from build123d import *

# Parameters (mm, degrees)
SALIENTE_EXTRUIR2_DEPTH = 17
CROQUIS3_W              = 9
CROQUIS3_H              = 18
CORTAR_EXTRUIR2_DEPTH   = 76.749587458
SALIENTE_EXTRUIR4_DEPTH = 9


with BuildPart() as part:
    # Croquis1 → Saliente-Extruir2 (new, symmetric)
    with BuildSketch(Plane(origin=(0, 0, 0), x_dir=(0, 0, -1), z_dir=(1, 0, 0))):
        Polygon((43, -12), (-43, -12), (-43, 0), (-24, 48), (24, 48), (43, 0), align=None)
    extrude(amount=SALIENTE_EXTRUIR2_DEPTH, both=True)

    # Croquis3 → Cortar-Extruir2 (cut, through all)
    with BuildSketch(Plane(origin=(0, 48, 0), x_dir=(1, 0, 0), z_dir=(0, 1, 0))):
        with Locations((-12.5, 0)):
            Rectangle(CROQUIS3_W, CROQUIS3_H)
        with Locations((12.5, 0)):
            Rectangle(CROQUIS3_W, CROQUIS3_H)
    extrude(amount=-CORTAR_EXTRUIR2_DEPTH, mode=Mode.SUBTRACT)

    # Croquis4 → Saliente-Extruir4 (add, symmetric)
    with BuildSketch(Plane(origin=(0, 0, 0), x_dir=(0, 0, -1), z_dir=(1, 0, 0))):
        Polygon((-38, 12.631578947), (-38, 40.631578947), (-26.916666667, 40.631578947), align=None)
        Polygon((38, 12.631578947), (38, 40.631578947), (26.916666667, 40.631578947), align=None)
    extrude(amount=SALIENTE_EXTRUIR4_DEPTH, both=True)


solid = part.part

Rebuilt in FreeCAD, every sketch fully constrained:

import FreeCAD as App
import Part
import Sketcher
Q = App.Units.Quantity

doc = App.newDocument("Part")
body = doc.addObject("PartDesign::Body", "Body")

sketch1 = doc.addObject("Sketcher::SketchObject", "Sketch")
body.addObject(sketch1)
sketch1.AttachmentSupport = (doc.YZ_Plane, [""])
sketch1.MapMode = "FlatFace"
sketch1.addGeometry(Part.LineSegment(App.Vector(-12, 43, 0), App.Vector(-12, -43, 0)), False)
sketch1.addGeometry(Part.LineSegment(App.Vector(-12, -43, 0), App.Vector(0, -43, 0)), False)
sketch1.addGeometry(Part.LineSegment(App.Vector(0, -43, 0), App.Vector(48, -24, 0)), False)
sketch1.addGeometry(Part.LineSegment(App.Vector(48, -24, 0), App.Vector(48, 24, 0)), False)
sketch1.addGeometry(Part.LineSegment(App.Vector(48, 24, 0), App.Vector(0, 43, 0)), False)
sketch1.addGeometry(Part.LineSegment(App.Vector(0, 43, 0), App.Vector(-12, 43, 0)), False)
sketch1.addConstraint(Sketcher.Constraint("Coincident", 0, 2, 1, 1))
sketch1.addConstraint(Sketcher.Constraint("Coincident", 1, 2, 2, 1))
sketch1.addConstraint(Sketcher.Constraint("Coincident", 2, 2, 3, 1))
sketch1.addConstraint(Sketcher.Constraint("Coincident", 3, 2, 4, 1))
sketch1.addConstraint(Sketcher.Constraint("Coincident", 4, 2, 5, 1))
sketch1.addConstraint(Sketcher.Constraint("Coincident", 5, 2, 0, 1))
sketch1.addConstraint(Sketcher.Constraint("Vertical", 0))
sketch1.addConstraint(Sketcher.Constraint("Horizontal", 1))
sketch1.addConstraint(Sketcher.Constraint("Vertical", 3))
sketch1.addConstraint(Sketcher.Constraint("Horizontal", 5))
sketch1.addConstraint(Sketcher.Constraint("Symmetric", 1, 2, 4, 2, -1, 1))
sketch1.addConstraint(Sketcher.Constraint("PointOnObject", 1, 2, -2))
sketch1.addConstraint(Sketcher.Constraint("Equal", 2, 4))
sketch1.addConstraint(Sketcher.Constraint("DistanceX", 1, 1, 1, 2, Q("12 mm")))
sketch1.addConstraint(Sketcher.Constraint("DistanceY", 0, 2, 0, 1, Q("86 mm")))
sketch1.addConstraint(Sketcher.Constraint("DistanceY", 3, 1, 3, 2, Q("48 mm")))
sketch1.addConstraint(Sketcher.Constraint("DistanceX", -1, 1, 2, 2, Q("48 mm")))
pad1 = doc.addObject("PartDesign::Pad", "Pad")
body.addObject(pad1)
pad1.Profile = sketch1
pad1.Length = 34
pad1.Midplane = True

sketch2 = doc.addObject("Sketcher::SketchObject", "Sketch001")
body.addObject(sketch2)
sketch2.AttachmentSupport = (doc.XZ_Plane, [""])
sketch2.MapMode = "FlatFace"
sketch2.AttachmentOffset = App.Placement(App.Vector(0, 0, -48), App.Rotation())
sketch2.addGeometry(Part.LineSegment(App.Vector(-17, -9, 0), App.Vector(-17, 9, 0)), False)
sketch2.addGeometry(Part.LineSegment(App.Vector(-17, 9, 0), App.Vector(-8, 9, 0)), False)
sketch2.addGeometry(Part.LineSegment(App.Vector(-8, 9, 0), App.Vector(-8, -9, 0)), False)
sketch2.addGeometry(Part.LineSegment(App.Vector(-8, -9, 0), App.Vector(-17, -9, 0)), False)
sketch2.addGeometry(Part.LineSegment(App.Vector(8, -9, 0), App.Vector(8, 9, 0)), False)
sketch2.addGeometry(Part.LineSegment(App.Vector(8, 9, 0), App.Vector(17, 9, 0)), False)
sketch2.addGeometry(Part.LineSegment(App.Vector(17, 9, 0), App.Vector(17, -9, 0)), False)
sketch2.addGeometry(Part.LineSegment(App.Vector(17, -9, 0), App.Vector(8, -9, 0)), False)
sketch2.addConstraint(Sketcher.Constraint("Coincident", 0, 2, 1, 1))
sketch2.addConstraint(Sketcher.Constraint("Coincident", 1, 2, 2, 1))
sketch2.addConstraint(Sketcher.Constraint("Coincident", 2, 2, 3, 1))
sketch2.addConstraint(Sketcher.Constraint("Coincident", 3, 2, 0, 1))
sketch2.addConstraint(Sketcher.Constraint("Coincident", 4, 2, 5, 1))
sketch2.addConstraint(Sketcher.Constraint("Coincident", 5, 2, 6, 1))
sketch2.addConstraint(Sketcher.Constraint("Coincident", 6, 2, 7, 1))
sketch2.addConstraint(Sketcher.Constraint("Coincident", 7, 2, 4, 1))
sketch2.addConstraint(Sketcher.Constraint("Vertical", 0))
sketch2.addConstraint(Sketcher.Constraint("Horizontal", 1))
sketch2.addConstraint(Sketcher.Constraint("Vertical", 2))
sketch2.addConstraint(Sketcher.Constraint("Horizontal", 3))
sketch2.addConstraint(Sketcher.Constraint("Vertical", 4))
sketch2.addConstraint(Sketcher.Constraint("Horizontal", 5))
sketch2.addConstraint(Sketcher.Constraint("Vertical", 6))
sketch2.addConstraint(Sketcher.Constraint("Horizontal", 7))
sketch2.addConstraint(Sketcher.Constraint("Symmetric", 2, 2, 4, 2, -1, 1))
sketch2.addConstraint(Sketcher.Constraint("Symmetric", 0, 2, 6, 2, -1, 1))
sketch2.addConstraint(Sketcher.Constraint("Horizontal", 1, 2, 4, 2))
sketch2.addConstraint(Sketcher.Constraint("DistanceX", 1, 1, 1, 2, Q("9 mm")))
sketch2.addConstraint(Sketcher.Constraint("DistanceY", 0, 1, 0, 2, Q("18 mm")))
sketch2.addConstraint(Sketcher.Constraint("DistanceX", 0, 2, -1, 1, Q("17 mm")))
pocket1 = doc.addObject("PartDesign::Pocket", "Pocket")
body.addObject(pocket1)
pocket1.Profile = sketch2
pocket1.Type = "ThroughAll"
pocket1.Reversed = True

sketch3 = doc.addObject("Sketcher::SketchObject", "Sketch002")
body.addObject(sketch3)
sketch3.AttachmentSupport = (doc.YZ_Plane, [""])
sketch3.MapMode = "FlatFace"
sketch3.addGeometry(Part.LineSegment(App.Vector(41, 38, 0), App.Vector(13, 38, 0)), False)
sketch3.addGeometry(Part.LineSegment(App.Vector(13, 38, 0), App.Vector(41, 27, 0)), False)
sketch3.addGeometry(Part.LineSegment(App.Vector(41, 27, 0), App.Vector(41, 38, 0)), False)
sketch3.addGeometry(Part.LineSegment(App.Vector(13, -38, 0), App.Vector(41, -38, 0)), False)
sketch3.addGeometry(Part.LineSegment(App.Vector(41, -38, 0), App.Vector(41, -27, 0)), False)
sketch3.addGeometry(Part.LineSegment(App.Vector(41, -27, 0), App.Vector(13, -38, 0)), False)
sketch3.addConstraint(Sketcher.Constraint("Coincident", 0, 2, 1, 1))
sketch3.addConstraint(Sketcher.Constraint("Coincident", 1, 2, 2, 1))
sketch3.addConstraint(Sketcher.Constraint("Coincident", 2, 2, 0, 1))
sketch3.addConstraint(Sketcher.Constraint("Coincident", 3, 2, 4, 1))
sketch3.addConstraint(Sketcher.Constraint("Coincident", 4, 2, 5, 1))
sketch3.addConstraint(Sketcher.Constraint("Coincident", 5, 2, 3, 1))
sketch3.addConstraint(Sketcher.Constraint("Horizontal", 0))
sketch3.addConstraint(Sketcher.Constraint("Vertical", 2))
sketch3.addConstraint(Sketcher.Constraint("Horizontal", 3))
sketch3.addConstraint(Sketcher.Constraint("Vertical", 4))
sketch3.addConstraint(Sketcher.Constraint("Symmetric", 2, 2, 3, 2, -1))
sketch3.addConstraint(Sketcher.Constraint("Vertical", 0, 2, 5, 2))
sketch3.addConstraint(Sketcher.Constraint("Equal", 2, 4))
sketch3.addConstraint(Sketcher.Constraint("DistanceX", 0, 2, 0, 1, Q("28 mm")))
sketch3.addConstraint(Sketcher.Constraint("DistanceY", -1, 1, 0, 2, Q("38 mm")))
sketch3.addConstraint(Sketcher.Constraint("Distance", 1, Q("30.113789 mm")))
sketch3.addConstraint(Sketcher.Constraint("DistanceX", -1, 1, 0, 2, Q("12.631579 mm")))
pad2 = doc.addObject("PartDesign::Pad", "Pad001")
body.addObject(pad2)
pad2.Profile = sketch3
pad2.Length = 18
pad2.Midplane = True

doc.recompute()
